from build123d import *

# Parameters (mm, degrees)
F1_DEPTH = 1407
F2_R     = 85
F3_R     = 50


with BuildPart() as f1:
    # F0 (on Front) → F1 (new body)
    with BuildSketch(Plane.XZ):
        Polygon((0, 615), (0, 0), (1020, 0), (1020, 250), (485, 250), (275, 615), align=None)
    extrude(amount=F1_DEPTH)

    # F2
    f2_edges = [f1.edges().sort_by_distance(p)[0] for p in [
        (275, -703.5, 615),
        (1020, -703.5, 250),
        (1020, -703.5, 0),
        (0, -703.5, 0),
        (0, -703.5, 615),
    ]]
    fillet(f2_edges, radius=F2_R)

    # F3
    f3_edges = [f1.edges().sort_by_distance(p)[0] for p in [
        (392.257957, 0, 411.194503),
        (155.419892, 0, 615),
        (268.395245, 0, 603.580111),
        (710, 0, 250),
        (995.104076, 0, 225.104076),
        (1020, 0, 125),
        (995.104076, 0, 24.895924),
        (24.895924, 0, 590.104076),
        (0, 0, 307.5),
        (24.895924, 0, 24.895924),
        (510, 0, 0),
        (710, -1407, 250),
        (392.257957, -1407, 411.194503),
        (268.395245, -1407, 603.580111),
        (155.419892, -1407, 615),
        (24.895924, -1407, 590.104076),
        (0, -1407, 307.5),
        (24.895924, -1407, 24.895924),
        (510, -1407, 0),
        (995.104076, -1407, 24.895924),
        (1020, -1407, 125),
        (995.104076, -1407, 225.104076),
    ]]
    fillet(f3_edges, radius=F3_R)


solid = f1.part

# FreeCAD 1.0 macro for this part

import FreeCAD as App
import Part
import Sketcher


def edges_at(feature, points):
    """Names of the edges that pass closest to the given points."""
    edges = feature.Shape.Edges
    near = lambda p: min(range(len(edges)), key=lambda i: edges[i].distToShape(Part.Vertex(*p))[0])
    return sorted({f"Edge{near(p) + 1}" for p in points})

doc = App.newDocument("Part")
body = doc.addObject("PartDesign::Body", "Body")

sketch1 = body.newObject("Sketcher::SketchObject", "Sketch")
sketch1.AttachmentSupport = (doc.getObject("XZ_Plane"), [""])
sketch1.MapMode = "FlatFace"
sketch1.addGeometry([
    Part.LineSegment(App.Vector(0, 615, 0), App.Vector(0, 0, 0)),
    Part.LineSegment(App.Vector(0, 0, 0), App.Vector(1020, 0, 0)),
    Part.LineSegment(App.Vector(1020, 0, 0), App.Vector(1020, 250, 0)),
    Part.LineSegment(App.Vector(1020, 250, 0), App.Vector(485, 250, 0)),
    Part.LineSegment(App.Vector(485, 250, 0), App.Vector(275, 615, 0)),
    Part.LineSegment(App.Vector(275, 615, 0), App.Vector(0, 615, 0)),
], False)
sketch1.addConstraint([
    Sketcher.Constraint("Coincident", 0, 2, 1, 1),
    Sketcher.Constraint("Coincident", 1, 2, 2, 1),
    Sketcher.Constraint("Coincident", 2, 2, 3, 1),
    Sketcher.Constraint("Coincident", 3, 2, 4, 1),
    Sketcher.Constraint("Coincident", 4, 2, 5, 1),
    Sketcher.Constraint("Coincident", 5, 2, 0, 1),
    Sketcher.Constraint("Vertical", 0),
    Sketcher.Constraint("Horizontal", 1),
    Sketcher.Constraint("Vertical", 2),
    Sketcher.Constraint("Horizontal", 3),
    Sketcher.Constraint("Horizontal", 5),
    Sketcher.Constraint("Coincident", 0, 2, -1, 1),
    Sketcher.Constraint("DistanceX", 1, 1, 1, 2, 1020.0),
    Sketcher.Constraint("DistanceX", 3, 2, 3, 1, 535.0),
    Sketcher.Constraint("DistanceX", 5, 2, 5, 1, 275.0),
    Sketcher.Constraint("DistanceY", 0, 2, 0, 1, 615.0),
    Sketcher.Constraint("DistanceY", 2, 1, 2, 2, 250.0),
])
pad1 = body.newObject("PartDesign::Pad", "Pad")
pad1.Profile = sketch1
pad1.Length = 1407
doc.recompute()

fillet = body.newObject("PartDesign::Fillet", "Fillet")
fillet.Base = (pad1, edges_at(pad1, [
    (275, -703.5, 615),
    (1020, -703.5, 250),
    (1020, -703.5, 0),
    (0, -703.5, 0),
    (0, -703.5, 615),
]))
fillet.Radius = 85
doc.recompute()

fillet2 = body.newObject("PartDesign::Fillet", "Fillet001")
fillet2.Base = (fillet, edges_at(fillet, [
    (392.258, 0, 411.195),
    (155.42, 0, 615),
    (268.395, 0, 603.58),
    (710, 0, 250),
    (995.104, 0, 225.104),
    (1020, 0, 125),
    (995.104, 0, 24.896),
    (24.896, 0, 590.104),
    (0, 0, 307.5),
    (24.896, 0, 24.896),
    (510, 0, 0),
    (710, -1407, 250),
    (392.258, -1407, 411.195),
    (268.395, -1407, 603.58),
    (155.42, -1407, 615),
    (24.896, -1407, 590.104),
    (0, -1407, 307.5),
    (24.896, -1407, 24.896),
    (510, -1407, 0),
    (995.104, -1407, 24.896),
    (1020, -1407, 125),
    (995.104, -1407, 225.104),
]))
fillet2.Radius = 50

doc.recompute()
